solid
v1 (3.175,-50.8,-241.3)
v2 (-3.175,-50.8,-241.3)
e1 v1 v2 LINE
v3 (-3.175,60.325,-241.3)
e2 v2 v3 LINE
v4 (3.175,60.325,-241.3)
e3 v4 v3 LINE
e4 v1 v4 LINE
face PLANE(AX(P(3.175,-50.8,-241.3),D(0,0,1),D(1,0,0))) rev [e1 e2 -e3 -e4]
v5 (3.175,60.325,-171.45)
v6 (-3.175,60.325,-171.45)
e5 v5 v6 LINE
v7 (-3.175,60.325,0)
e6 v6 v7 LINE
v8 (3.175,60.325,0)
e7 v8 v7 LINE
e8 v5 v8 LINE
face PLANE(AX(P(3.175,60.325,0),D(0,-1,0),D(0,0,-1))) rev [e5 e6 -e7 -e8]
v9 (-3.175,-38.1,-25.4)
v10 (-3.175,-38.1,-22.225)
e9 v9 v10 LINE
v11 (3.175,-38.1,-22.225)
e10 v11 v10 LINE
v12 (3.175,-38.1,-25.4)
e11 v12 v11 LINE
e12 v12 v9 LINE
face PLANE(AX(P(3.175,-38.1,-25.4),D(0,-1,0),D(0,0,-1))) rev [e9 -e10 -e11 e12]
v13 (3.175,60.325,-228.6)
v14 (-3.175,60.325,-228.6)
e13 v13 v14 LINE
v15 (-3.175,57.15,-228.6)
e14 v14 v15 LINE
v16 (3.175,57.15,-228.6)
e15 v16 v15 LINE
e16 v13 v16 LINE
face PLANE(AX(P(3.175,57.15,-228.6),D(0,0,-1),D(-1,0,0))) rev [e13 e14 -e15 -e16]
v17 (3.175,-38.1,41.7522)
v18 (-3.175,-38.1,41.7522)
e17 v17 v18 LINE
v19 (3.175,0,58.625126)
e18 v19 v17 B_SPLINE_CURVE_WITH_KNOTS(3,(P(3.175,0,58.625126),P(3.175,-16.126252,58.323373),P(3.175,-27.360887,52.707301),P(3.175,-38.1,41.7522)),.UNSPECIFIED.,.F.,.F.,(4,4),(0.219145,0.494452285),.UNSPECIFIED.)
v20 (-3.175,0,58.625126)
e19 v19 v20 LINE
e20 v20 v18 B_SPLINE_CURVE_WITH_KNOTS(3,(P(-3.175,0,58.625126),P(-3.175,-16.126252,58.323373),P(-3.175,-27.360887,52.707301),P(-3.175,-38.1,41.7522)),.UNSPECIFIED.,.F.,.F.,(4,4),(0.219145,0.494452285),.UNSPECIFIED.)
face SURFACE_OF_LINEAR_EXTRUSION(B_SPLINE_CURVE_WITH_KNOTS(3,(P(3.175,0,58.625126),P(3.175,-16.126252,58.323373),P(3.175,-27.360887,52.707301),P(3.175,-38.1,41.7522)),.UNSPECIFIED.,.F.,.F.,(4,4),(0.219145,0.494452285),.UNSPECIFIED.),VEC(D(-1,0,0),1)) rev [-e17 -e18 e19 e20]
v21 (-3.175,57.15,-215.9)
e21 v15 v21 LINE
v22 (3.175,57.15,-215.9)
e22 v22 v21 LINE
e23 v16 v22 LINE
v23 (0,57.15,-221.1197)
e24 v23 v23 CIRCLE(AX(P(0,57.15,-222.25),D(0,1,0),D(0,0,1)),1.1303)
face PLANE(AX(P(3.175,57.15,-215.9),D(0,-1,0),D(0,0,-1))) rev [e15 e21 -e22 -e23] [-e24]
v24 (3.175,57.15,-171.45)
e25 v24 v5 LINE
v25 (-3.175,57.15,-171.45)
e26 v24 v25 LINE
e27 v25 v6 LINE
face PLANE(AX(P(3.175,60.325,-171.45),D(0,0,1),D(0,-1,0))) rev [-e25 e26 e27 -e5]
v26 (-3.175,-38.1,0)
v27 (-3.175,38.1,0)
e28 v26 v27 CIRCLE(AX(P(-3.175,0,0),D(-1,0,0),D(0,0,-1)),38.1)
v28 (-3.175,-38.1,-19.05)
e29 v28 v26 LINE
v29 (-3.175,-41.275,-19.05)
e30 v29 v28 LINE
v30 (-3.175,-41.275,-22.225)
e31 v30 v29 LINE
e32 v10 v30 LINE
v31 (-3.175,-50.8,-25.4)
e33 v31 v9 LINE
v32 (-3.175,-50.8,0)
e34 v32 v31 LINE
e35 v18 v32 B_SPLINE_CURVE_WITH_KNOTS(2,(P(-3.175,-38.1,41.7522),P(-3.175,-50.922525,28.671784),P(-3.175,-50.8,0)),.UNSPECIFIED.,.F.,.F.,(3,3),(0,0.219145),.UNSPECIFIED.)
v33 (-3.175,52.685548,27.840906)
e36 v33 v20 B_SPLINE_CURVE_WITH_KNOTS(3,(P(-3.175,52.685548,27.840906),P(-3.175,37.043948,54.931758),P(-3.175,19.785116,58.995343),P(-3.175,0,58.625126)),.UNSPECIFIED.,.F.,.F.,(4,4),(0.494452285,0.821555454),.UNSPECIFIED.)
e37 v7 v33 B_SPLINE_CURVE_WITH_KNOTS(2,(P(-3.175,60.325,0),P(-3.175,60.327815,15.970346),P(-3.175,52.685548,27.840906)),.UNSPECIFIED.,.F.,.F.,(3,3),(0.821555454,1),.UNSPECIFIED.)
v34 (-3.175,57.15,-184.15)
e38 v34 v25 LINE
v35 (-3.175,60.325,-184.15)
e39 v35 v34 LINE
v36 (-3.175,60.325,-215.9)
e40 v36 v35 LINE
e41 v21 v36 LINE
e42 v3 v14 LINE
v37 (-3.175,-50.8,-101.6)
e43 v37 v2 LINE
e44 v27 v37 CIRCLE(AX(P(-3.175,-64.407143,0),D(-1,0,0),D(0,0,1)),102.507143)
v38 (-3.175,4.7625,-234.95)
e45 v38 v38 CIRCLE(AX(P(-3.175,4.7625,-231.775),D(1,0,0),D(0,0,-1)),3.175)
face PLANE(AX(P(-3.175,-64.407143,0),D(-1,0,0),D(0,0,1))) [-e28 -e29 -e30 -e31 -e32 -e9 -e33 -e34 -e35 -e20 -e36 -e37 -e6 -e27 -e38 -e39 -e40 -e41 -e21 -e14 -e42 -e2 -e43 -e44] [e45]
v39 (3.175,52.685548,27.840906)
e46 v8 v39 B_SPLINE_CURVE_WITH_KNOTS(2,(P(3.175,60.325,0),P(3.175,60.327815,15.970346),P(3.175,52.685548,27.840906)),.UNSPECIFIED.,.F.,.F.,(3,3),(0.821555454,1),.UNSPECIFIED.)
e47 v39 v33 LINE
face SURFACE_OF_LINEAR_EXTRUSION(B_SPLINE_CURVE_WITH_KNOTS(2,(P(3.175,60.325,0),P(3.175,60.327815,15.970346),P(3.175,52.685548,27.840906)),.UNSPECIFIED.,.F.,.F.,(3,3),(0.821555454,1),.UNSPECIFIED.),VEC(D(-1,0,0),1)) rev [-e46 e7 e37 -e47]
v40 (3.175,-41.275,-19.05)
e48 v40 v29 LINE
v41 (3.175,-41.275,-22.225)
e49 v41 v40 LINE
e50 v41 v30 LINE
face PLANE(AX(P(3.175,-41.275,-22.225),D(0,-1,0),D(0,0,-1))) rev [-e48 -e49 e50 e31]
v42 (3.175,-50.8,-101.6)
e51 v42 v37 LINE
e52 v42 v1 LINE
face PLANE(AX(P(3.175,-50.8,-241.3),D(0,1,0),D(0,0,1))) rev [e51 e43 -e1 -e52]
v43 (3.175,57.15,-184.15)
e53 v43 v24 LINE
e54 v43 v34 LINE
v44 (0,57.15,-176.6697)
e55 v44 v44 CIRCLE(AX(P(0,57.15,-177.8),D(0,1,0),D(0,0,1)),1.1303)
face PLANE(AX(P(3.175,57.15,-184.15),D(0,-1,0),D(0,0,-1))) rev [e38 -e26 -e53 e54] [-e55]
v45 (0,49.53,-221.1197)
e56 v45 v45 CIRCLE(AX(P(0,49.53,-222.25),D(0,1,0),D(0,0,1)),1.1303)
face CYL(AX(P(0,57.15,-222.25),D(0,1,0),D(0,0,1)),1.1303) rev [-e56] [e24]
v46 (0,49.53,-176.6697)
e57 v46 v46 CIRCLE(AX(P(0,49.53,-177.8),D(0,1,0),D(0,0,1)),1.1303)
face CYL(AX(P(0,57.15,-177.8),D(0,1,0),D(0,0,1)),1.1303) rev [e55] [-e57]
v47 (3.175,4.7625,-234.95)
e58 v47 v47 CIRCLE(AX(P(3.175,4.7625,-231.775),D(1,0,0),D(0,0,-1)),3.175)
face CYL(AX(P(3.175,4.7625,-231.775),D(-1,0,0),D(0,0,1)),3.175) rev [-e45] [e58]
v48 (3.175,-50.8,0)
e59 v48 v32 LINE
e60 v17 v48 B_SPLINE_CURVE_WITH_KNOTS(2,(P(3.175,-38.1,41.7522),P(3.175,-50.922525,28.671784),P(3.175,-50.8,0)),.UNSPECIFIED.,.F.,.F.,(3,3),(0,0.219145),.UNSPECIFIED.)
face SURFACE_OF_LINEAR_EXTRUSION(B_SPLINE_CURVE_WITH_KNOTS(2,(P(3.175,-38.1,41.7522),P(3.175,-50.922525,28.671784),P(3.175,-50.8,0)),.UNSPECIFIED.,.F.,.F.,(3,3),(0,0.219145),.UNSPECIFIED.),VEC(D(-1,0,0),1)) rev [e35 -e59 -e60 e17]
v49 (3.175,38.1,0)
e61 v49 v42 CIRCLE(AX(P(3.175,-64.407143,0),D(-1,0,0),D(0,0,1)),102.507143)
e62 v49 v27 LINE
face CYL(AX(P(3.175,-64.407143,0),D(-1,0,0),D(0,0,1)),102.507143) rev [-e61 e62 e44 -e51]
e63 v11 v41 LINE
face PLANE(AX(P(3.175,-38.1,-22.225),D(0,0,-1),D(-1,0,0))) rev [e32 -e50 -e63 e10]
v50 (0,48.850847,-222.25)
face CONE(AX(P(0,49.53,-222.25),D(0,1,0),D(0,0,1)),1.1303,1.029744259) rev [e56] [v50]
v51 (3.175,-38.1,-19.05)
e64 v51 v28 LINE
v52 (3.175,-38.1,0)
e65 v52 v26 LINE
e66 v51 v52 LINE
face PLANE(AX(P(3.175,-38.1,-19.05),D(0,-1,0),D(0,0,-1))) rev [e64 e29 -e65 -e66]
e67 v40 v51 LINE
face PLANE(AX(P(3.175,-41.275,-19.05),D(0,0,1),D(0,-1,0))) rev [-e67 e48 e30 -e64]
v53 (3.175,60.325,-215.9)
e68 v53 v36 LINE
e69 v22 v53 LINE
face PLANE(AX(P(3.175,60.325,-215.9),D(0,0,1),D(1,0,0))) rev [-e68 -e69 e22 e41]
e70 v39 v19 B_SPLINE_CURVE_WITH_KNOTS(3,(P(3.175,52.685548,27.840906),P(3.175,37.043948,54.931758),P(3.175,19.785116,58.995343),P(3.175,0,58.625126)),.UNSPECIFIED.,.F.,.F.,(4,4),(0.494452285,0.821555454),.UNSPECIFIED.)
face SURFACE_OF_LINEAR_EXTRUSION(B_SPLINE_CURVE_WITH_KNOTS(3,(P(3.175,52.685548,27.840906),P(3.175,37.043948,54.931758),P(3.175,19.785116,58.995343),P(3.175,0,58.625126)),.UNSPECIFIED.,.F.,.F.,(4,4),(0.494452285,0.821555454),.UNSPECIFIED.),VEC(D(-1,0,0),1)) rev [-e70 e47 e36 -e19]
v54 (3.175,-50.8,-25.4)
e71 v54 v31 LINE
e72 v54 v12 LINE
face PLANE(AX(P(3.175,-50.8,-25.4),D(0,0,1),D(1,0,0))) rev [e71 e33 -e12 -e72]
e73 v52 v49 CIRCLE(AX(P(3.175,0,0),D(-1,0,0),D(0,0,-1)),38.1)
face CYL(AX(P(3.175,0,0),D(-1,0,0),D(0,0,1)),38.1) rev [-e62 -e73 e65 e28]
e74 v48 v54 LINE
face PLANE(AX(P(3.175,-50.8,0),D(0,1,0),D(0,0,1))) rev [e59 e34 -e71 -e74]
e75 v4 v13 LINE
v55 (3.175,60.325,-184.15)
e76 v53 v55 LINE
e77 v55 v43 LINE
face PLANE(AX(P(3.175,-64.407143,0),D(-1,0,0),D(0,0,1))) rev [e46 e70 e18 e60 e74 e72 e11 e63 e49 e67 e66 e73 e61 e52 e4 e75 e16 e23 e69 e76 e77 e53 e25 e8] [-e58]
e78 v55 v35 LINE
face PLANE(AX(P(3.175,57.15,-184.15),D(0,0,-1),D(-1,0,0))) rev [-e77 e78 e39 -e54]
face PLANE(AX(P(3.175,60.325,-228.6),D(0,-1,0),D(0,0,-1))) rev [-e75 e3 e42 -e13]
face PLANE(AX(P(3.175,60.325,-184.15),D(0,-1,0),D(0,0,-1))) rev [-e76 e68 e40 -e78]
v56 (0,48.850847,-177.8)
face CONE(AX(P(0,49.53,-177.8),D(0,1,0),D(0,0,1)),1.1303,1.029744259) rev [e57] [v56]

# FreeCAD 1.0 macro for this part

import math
import FreeCAD as App
import Part
import Sketcher

V = App.Vector
Q = App.Units.Quantity

doc = App.newDocument("Part")
body = doc.addObject("PartDesign::Body", "Body")

# Sketch on YZ plane
sketch1 = body.newObject("Sketcher::SketchObject", "Sketch")
sketch1.AttachmentSupport = (doc.getObject("YZ_Plane"), [""])
sketch1.MapMode = "FlatFace"
sketch1.addGeometry([
    Part.LineSegment(V(-50.8, -25.4, 0), V(-38.1, -25.4, 0)),  # 0
    Part.LineSegment(V(-38.1, -25.4, 0), V(-38.1, -22.225, 0)),  # 1
    Part.LineSegment(V(-38.1, -22.225, 0), V(-41.275, -22.225, 0)),  # 2
    Part.LineSegment(V(-41.275, -22.225, 0), V(-41.275, -19.05, 0)),  # 3
    Part.LineSegment(V(-41.275, -19.05, 0), V(-38.1, -19.05, 0)),  # 4
    Part.LineSegment(V(-38.1, -19.05, 0), V(-38.1, 0, 0)),  # 5
    Part.ArcOfCircle(Part.Circle(V(0, 0, 0), V(0, 0, 1), 38.1), math.radians(0), math.radians(180)),  # 6
    Part.ArcOfCircle(Part.Circle(V(-64.407143, 0, 0), V(0, 0, 1), 102.507143), math.radians(-82.37185), math.radians(0)),  # 7
    Part.LineSegment(V(-50.8, -101.6, 0), V(-50.8, -241.3, 0)),  # 8
    Part.LineSegment(V(-50.8, -241.3, 0), V(60.325, -241.3, 0)),  # 9
    Part.LineSegment(V(60.325, -241.3, 0), V(60.325, -228.6, 0)),  # 10
    Part.LineSegment(V(60.325, -228.6, 0), V(57.15, -228.6, 0)),  # 11
    Part.LineSegment(V(57.15, -228.6, 0), V(57.15, -215.9, 0)),  # 12
    Part.LineSegment(V(57.15, -215.9, 0), V(60.325, -215.9, 0)),  # 13
    Part.LineSegment(V(60.325, -215.9, 0), V(60.325, -184.15, 0)),  # 14
    Part.LineSegment(V(60.325, -184.15, 0), V(57.15, -184.15, 0)),  # 15
    Part.LineSegment(V(57.15, -184.15, 0), V(57.15, -171.45, 0)),  # 16
    Part.LineSegment(V(57.15, -171.45, 0), V(60.325, -171.45, 0)),  # 17
    Part.LineSegment(V(60.325, -171.45, 0), V(60.325, 0, 0)),  # 18
    Part.BSplineCurve([V(52.685548, 27.840906, 0), V(60.327815, 15.970346, 0), V(60.325, 0, 0)], [3, 3], [0.821555454, 1], False, 2, [1, 1, 1], False),  # 19
    Part.BSplineCurve([V(0, 58.625126, 0), V(19.785116, 58.995343, 0), V(37.043948, 54.931758, 0), V(52.685548, 27.840906, 0)], [4, 4], [0.494452285, 0.821555454], False, 3, [1, 1, 1, 1], False),  # 20
    Part.BSplineCurve([V(-38.1, 41.7522, 0), V(-27.360887, 52.707301, 0), V(-16.126252, 58.323373, 0), V(0, 58.625126, 0)], [4, 4], [0.219145, 0.494452285], False, 3, [1, 1, 1, 1], False),  # 21
    Part.BSplineCurve([V(-50.8, 0, 0), V(-50.922525, 28.671784, 0), V(-38.1, 41.7522, 0)], [3, 3], [0, 0.219145], False, 2, [1, 1, 1], False),  # 22
    Part.LineSegment(V(-50.8, 0, 0), V(-50.8, -25.4, 0)),  # 23
    Part.Circle(V(4.7625, -231.775, 0), V(0, 0, 1), 3.175),  # 24
], False)
sketch1.addConstraint([
    Sketcher.Constraint("Block", 19),
    Sketcher.Constraint("Block", 20),
    Sketcher.Constraint("Block", 21),
    Sketcher.Constraint("Block", 22),
    Sketcher.Constraint("Coincident", 0, 2, 1, 1),
    Sketcher.Constraint("Coincident", 1, 2, 2, 1),
    Sketcher.Constraint("Coincident", 2, 2, 3, 1),
    Sketcher.Constraint("Coincident", 3, 2, 4, 1),
    Sketcher.Constraint("Coincident", 4, 2, 5, 1),
    Sketcher.Constraint("Tangent", 5, 2, 6, 2),
    Sketcher.Constraint("Tangent", 6, 1, 7, 2),
    Sketcher.Constraint("Coincident", 7, 1, 8, 1),
    Sketcher.Constraint("Coincident", 8, 2, 9, 1),
    Sketcher.Constraint("Coincident", 9, 2, 10, 1),
    Sketcher.Constraint("Coincident", 10, 2, 11, 1),
    Sketcher.Constraint("Coincident", 11, 2, 12, 1),
    Sketcher.Constraint("Coincident", 12, 2, 13, 1),
    Sketcher.Constraint("Coincident", 13, 2, 14, 1),
    Sketcher.Constraint("Coincident", 14, 2, 15, 1),
    Sketcher.Constraint("Coincident", 15, 2, 16, 1),
    Sketcher.Constraint("Coincident", 16, 2, 17, 1),
    Sketcher.Constraint("Coincident", 17, 2, 18, 1),
    Sketcher.Constraint("Coincident", 18, 2, 19, 2),
    Sketcher.Constraint("Coincident", 22, 1, 23, 1),
    Sketcher.Constraint("Coincident", 23, 2, 0, 1),
    Sketcher.Constraint("Horizontal", 0),
    Sketcher.Constraint("Vertical", 1),
    Sketcher.Constraint("Horizontal", 2),
    Sketcher.Constraint("Vertical", 3),
    Sketcher.Constraint("Horizontal", 4),
    Sketcher.Constraint("Vertical", 5),
    Sketcher.Constraint("Vertical", 8),
    Sketcher.Constraint("Horizontal", 9),
    Sketcher.Constraint("Vertical", 10),
    Sketcher.Constraint("Horizontal", 11),
    Sketcher.Constraint("Vertical", 12),
    Sketcher.Constraint("Horizontal", 13),
    Sketcher.Constraint("Vertical", 14),
    Sketcher.Constraint("Horizontal", 15),
    Sketcher.Constraint("Vertical", 16),
    Sketcher.Constraint("Horizontal", 17),
    Sketcher.Constraint("Vertical", 18),
    Sketcher.Constraint("Vertical", 23),
    Sketcher.Constraint("Coincident", 6, 3, -1, 1),
    Sketcher.Constraint("PointOnObject", 7, 3, -1),
    Sketcher.Constraint("Vertical", 1, 2, 4, 2),
    Sketcher.Constraint("Vertical", 10, 2, 13, 2),
    Sketcher.Constraint("Vertical", 12, 2, 15, 2),
    Sketcher.Constraint("Vertical", 14, 2, 17, 2),
    Sketcher.Constraint("Vertical", 8, 2, 23, 2),
    Sketcher.Constraint("Equal", 4, 11),
    Sketcher.Constraint("Equal", 17, 1),
    Sketcher.Constraint("Equal", 1, 3),
    Sketcher.Constraint("Equal", 0, 10),
    Sketcher.Constraint("Equal", 10, 12),
    Sketcher.Constraint("Equal", 12, 16),
    Sketcher.Constraint("Radius", 6, Q("1.5 in")),
    Sketcher.Constraint("Diameter", 24, Q("0.25 in")),
    Sketcher.Constraint("DistanceY", 23, 2, 23, 1, Q("1 in")),
    Sketcher.Constraint("DistanceY", 8, 2, 8, 1, Q("5.5 in")),
    Sketcher.Constraint("DistanceY", 7, 1, -1, 1, Q("4 in")),
    Sketcher.Constraint("DistanceY", 5, 1, 5, 2, Q("0.75 in")),
    Sketcher.Constraint("DistanceY", 14, 1, 14, 2, Q("1.25 in")),
    Sketcher.Constraint("DistanceY", 24, 3, 1, 2, Q("8.25 in")),
    Sketcher.Constraint("DistanceX", -1, 1, 24, 3, Q("0.1875 in")),
])
pad1 = body.newObject("PartDesign::Pad", "Pad")
pad1.Profile = sketch1
pad1.Length = Q("0.25 in")
pad1.Midplane = True

# Sketch on XZ plane
sketch2 = body.newObject("Sketcher::SketchObject", "Sketch001")
sketch2.AttachmentSupport = (doc.getObject("XZ_Plane"), [""])
sketch2.MapMode = "FlatFace"
sketch2.AttachmentOffset = App.Placement(V(0, 0, -2.25 * 25.4), App.Rotation())
sketch2.addGeometry([
    Part.Circle(V(0, -177.8, 0), V(0, 0, 1), 1.1303),
    Part.Circle(V(0, -222.25, 0), V(0, 0, 1), 1.1303),
], False)
sketch2.addConstraint([
    Sketcher.Constraint("Equal", 0, 1),
    Sketcher.Constraint("PointOnObject", 0, 3, -2),
    Sketcher.Constraint("PointOnObject", 1, 3, -2),
    Sketcher.Constraint("Diameter", 0, Q("0.089 in")),
    Sketcher.Constraint("DistanceY", 0, 3, -1, 1, Q("7 in")),
    Sketcher.Constraint("DistanceY", 1, 3, -1, 1, Q("8.75 in")),
])
doc.recompute()
hole = body.newObject("PartDesign::Hole", "Hole")
hole.Profile = sketch2
hole.ThreadType = "None"
hole.Diameter = Q("0.089 in")
hole.DepthType = "Dimension"
hole.Depth = Q("0.3 in")
hole.DrillPoint = "Angled"
hole.DrillPointAngle = 118
hole.Reversed = True

doc.recompute()
